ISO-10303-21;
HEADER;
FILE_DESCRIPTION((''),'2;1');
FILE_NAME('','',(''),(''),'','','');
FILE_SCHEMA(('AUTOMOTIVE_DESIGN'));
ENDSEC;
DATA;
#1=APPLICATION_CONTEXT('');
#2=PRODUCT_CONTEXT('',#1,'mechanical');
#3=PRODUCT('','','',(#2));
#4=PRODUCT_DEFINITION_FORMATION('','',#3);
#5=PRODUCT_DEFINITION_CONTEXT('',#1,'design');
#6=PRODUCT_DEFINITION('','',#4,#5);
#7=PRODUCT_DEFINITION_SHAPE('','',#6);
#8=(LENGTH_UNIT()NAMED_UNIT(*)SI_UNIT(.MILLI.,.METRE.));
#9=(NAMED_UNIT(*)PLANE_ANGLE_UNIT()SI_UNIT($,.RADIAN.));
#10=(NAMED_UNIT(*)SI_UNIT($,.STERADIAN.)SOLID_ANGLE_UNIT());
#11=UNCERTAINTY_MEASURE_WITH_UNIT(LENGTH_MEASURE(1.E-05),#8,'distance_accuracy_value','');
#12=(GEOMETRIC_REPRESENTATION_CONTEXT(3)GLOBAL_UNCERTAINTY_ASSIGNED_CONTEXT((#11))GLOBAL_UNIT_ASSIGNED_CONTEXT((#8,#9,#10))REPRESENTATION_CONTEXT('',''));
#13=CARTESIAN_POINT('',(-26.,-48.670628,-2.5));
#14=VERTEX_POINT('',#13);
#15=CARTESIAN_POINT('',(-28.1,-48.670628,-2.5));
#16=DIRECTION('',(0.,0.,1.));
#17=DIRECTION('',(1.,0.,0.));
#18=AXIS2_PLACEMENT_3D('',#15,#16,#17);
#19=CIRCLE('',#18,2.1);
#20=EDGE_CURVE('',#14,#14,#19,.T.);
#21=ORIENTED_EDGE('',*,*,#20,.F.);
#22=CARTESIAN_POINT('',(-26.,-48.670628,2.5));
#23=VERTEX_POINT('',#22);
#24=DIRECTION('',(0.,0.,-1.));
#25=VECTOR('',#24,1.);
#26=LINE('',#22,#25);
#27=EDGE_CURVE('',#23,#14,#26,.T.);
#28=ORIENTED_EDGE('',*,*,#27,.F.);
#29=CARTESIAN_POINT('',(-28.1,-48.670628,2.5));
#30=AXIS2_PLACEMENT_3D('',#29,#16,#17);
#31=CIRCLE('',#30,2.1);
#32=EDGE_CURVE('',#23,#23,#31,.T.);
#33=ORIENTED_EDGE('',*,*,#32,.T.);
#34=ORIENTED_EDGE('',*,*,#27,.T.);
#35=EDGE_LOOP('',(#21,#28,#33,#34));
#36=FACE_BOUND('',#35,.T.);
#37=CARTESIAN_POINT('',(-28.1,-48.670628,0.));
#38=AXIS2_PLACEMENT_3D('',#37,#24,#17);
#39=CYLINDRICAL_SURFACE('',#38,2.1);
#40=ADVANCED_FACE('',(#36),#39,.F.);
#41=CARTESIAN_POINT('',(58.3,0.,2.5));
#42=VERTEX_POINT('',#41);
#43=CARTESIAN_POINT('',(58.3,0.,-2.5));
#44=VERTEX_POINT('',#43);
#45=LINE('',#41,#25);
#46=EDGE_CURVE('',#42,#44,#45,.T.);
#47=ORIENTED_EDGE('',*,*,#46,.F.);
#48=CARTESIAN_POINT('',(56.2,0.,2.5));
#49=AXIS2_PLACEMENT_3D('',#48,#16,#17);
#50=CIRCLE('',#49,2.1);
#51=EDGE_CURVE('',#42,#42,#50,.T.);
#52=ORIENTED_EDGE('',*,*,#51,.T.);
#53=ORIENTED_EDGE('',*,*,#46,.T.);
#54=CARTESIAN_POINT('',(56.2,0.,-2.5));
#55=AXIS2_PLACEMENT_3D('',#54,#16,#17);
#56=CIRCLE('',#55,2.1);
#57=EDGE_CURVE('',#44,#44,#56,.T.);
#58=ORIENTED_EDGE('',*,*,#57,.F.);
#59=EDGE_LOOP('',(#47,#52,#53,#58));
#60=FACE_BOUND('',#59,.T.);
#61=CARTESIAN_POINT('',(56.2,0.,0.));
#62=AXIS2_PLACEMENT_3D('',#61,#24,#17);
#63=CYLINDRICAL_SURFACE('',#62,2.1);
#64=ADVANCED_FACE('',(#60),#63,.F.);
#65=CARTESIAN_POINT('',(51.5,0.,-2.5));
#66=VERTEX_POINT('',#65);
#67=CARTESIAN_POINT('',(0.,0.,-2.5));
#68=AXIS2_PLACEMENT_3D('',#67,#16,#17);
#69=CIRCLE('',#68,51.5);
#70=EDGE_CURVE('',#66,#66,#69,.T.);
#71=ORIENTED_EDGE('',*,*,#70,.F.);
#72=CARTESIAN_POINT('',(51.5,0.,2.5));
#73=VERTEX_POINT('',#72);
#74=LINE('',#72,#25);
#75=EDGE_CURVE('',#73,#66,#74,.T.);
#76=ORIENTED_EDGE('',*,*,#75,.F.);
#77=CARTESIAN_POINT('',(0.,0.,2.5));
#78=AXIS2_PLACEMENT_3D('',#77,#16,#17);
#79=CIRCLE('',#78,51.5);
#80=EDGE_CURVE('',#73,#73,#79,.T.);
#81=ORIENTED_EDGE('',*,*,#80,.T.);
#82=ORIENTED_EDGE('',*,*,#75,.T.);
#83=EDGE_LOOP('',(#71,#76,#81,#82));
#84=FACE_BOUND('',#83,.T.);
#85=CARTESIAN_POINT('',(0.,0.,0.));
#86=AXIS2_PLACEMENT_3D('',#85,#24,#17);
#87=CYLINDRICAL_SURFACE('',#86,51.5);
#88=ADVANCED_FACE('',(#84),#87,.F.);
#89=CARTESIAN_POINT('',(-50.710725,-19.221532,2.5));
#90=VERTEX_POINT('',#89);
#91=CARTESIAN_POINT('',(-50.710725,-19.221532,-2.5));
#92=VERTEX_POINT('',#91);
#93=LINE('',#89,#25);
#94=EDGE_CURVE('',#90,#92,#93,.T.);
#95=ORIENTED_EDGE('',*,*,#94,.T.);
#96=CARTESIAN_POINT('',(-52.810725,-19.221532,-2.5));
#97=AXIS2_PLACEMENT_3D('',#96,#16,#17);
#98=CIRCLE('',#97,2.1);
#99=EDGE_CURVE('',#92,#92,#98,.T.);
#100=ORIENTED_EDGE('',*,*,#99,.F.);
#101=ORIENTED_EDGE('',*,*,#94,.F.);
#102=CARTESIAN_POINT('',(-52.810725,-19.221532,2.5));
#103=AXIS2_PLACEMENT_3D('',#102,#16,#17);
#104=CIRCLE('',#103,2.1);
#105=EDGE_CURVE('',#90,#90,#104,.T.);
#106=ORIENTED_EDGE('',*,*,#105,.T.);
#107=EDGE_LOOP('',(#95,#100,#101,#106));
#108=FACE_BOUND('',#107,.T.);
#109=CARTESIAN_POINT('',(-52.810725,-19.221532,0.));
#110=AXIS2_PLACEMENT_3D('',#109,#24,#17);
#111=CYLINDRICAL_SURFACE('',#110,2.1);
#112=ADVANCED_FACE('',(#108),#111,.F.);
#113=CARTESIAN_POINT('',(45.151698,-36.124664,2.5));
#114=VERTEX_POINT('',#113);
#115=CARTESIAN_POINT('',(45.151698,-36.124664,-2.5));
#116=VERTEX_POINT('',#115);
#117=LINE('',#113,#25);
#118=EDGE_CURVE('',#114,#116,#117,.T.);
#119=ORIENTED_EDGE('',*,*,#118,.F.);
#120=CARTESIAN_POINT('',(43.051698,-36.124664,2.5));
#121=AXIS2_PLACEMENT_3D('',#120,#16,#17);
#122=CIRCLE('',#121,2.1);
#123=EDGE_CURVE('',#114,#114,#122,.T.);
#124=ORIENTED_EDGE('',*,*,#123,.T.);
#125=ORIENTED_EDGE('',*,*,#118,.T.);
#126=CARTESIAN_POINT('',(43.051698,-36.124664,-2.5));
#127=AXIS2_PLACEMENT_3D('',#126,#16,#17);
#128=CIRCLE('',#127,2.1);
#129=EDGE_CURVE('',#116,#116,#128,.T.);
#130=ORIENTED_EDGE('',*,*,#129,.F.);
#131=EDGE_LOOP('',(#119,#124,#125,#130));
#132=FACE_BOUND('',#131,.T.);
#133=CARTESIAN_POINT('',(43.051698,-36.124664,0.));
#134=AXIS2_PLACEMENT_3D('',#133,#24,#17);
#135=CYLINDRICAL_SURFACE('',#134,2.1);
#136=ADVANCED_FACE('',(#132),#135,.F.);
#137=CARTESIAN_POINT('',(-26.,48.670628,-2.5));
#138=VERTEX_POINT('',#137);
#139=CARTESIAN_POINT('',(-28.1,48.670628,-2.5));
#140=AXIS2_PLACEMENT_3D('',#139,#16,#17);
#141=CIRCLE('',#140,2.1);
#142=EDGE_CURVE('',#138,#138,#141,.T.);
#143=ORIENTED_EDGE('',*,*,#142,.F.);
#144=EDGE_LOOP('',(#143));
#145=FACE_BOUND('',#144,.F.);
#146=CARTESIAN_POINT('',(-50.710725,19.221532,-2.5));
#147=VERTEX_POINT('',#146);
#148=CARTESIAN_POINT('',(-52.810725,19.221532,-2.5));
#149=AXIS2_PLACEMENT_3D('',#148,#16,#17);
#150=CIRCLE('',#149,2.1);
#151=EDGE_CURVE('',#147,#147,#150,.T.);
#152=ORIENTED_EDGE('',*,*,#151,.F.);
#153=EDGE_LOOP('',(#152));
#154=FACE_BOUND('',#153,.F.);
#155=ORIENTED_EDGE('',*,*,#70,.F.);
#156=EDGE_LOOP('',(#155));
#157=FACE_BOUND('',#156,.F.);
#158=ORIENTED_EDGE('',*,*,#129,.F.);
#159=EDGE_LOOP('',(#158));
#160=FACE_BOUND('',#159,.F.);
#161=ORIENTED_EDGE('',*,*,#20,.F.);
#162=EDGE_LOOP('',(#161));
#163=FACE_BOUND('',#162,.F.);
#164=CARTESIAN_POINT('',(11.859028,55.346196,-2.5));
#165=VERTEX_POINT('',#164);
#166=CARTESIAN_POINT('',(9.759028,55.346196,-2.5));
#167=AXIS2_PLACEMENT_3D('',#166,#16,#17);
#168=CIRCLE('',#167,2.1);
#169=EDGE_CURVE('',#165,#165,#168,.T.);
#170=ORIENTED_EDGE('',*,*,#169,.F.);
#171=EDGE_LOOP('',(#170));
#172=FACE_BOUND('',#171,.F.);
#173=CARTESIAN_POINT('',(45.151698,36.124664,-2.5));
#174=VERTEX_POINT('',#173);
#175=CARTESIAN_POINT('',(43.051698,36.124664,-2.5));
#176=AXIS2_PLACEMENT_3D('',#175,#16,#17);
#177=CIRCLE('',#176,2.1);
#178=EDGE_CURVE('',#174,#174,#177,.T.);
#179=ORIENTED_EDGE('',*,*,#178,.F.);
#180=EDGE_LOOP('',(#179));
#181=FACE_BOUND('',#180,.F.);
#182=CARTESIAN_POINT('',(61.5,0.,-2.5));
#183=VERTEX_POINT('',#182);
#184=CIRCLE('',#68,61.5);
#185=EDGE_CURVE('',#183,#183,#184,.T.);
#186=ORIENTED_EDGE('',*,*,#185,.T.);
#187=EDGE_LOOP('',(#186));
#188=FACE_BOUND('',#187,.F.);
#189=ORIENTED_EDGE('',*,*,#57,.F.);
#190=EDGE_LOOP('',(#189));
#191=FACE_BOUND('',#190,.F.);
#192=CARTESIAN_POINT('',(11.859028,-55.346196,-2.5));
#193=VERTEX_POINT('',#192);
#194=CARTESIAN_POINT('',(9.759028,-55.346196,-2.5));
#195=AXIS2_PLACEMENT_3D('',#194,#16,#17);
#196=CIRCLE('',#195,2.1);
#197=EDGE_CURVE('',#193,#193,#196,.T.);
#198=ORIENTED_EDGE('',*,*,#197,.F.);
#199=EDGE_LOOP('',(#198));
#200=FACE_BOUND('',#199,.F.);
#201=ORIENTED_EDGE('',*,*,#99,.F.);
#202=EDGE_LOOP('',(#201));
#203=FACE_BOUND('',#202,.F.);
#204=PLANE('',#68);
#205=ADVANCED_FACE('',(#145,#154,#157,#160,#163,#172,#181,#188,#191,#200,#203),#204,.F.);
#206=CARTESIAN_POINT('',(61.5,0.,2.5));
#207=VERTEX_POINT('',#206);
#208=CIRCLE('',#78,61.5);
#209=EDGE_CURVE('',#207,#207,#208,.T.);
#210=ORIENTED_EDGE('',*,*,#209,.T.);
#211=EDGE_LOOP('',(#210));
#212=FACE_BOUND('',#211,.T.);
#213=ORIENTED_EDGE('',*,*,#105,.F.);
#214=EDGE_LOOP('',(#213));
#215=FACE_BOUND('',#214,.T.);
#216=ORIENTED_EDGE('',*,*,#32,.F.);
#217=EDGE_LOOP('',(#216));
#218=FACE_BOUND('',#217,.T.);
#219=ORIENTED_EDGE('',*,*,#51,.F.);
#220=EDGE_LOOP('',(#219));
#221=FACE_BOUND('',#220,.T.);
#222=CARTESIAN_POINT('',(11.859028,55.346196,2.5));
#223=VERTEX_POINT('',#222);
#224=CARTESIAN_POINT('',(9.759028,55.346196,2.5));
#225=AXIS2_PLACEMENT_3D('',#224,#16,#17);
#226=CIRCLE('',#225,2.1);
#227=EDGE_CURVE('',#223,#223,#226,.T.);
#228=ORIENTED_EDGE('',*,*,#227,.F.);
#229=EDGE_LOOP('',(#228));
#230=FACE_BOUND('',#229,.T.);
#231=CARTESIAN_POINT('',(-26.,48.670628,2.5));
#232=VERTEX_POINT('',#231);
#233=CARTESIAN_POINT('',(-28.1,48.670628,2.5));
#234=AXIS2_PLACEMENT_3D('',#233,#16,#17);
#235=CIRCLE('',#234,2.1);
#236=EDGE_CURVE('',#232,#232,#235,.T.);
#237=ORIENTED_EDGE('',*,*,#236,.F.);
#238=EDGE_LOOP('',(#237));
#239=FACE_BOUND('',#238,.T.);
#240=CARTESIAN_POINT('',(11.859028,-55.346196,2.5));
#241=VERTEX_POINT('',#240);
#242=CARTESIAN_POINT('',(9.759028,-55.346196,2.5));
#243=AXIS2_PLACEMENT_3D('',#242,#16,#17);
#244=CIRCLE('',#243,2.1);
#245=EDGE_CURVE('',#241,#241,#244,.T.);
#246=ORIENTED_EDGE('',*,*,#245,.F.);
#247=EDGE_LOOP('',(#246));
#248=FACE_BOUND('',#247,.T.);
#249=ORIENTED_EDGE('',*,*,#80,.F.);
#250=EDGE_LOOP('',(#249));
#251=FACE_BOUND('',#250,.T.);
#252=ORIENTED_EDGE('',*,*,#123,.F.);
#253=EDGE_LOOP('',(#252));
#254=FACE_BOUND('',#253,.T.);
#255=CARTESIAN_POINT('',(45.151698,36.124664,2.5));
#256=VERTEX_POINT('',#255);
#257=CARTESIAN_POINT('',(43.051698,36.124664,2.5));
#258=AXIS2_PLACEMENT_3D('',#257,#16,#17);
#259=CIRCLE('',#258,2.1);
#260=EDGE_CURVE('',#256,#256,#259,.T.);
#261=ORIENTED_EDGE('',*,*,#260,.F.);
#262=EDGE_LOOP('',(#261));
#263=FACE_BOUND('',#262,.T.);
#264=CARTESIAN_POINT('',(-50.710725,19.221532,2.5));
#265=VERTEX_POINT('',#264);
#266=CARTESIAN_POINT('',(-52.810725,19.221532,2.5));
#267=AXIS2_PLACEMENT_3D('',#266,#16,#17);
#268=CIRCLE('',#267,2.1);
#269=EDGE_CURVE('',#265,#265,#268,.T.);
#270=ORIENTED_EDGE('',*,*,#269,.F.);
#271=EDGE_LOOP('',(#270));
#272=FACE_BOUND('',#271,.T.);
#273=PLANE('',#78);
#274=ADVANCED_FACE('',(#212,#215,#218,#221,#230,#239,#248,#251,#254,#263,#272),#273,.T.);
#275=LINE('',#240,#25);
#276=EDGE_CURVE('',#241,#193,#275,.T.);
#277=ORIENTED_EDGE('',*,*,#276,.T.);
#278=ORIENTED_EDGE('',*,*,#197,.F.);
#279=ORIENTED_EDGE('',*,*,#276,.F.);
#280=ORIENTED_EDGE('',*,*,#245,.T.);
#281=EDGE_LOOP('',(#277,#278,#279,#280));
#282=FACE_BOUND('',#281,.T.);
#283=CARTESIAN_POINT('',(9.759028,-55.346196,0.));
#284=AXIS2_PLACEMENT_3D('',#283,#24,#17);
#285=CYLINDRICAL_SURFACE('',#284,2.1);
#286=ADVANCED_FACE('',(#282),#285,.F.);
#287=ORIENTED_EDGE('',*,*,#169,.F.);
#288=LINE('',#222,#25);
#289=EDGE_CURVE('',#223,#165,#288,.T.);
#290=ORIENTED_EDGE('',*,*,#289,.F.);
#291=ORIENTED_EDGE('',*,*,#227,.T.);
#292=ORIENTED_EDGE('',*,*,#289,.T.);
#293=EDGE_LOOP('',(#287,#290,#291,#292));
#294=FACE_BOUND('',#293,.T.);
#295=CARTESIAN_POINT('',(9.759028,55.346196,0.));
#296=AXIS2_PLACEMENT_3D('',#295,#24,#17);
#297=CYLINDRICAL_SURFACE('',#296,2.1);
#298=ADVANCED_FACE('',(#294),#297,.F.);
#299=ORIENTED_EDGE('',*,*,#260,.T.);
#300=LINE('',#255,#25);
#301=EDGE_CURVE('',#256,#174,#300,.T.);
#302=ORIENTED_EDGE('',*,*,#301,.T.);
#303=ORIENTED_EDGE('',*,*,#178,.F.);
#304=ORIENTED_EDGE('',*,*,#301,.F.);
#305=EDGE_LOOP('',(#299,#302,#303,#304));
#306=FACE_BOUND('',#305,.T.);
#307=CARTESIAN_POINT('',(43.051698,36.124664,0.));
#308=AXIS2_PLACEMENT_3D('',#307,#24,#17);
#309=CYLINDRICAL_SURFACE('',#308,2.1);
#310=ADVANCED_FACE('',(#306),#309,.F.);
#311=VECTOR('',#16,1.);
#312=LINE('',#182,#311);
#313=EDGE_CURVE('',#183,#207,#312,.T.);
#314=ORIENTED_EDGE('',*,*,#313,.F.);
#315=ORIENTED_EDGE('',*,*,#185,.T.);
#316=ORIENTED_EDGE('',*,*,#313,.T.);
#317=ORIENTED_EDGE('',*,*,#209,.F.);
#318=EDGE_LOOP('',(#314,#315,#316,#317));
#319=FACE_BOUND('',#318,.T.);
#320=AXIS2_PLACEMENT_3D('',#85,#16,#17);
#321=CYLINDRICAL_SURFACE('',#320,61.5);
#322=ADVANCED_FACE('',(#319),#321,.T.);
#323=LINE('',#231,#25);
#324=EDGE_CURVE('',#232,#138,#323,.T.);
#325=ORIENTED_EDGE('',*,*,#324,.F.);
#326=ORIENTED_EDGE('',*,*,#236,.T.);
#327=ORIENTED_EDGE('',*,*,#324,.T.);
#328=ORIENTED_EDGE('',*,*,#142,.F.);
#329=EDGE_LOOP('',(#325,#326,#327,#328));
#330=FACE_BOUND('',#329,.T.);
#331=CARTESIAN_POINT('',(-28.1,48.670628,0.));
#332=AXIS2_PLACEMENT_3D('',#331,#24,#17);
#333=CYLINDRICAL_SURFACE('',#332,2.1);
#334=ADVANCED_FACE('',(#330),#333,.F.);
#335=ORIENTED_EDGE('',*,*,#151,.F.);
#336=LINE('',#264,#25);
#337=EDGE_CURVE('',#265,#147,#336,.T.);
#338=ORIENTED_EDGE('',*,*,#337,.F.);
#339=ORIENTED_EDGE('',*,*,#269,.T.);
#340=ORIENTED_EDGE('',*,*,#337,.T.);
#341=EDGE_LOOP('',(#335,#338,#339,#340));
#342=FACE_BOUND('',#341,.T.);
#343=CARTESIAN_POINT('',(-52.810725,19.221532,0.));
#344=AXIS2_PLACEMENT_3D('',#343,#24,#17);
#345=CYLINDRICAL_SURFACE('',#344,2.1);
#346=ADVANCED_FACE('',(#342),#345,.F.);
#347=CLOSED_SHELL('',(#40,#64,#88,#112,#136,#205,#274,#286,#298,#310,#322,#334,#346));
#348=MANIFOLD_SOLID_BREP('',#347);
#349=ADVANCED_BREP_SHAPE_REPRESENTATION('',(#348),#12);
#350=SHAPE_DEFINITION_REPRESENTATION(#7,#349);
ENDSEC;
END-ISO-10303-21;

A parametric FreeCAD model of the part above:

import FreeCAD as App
import Part
import Sketcher

V = App.Vector
Q = App.Units.Quantity

doc = App.newDocument("Part")
body = doc.addObject("PartDesign::Body", "Body")

# Sketch on XY plane
sketch1 = body.newObject("Sketcher::SketchObject", "Sketch")
sketch1.AttachmentSupport = (doc.getObject("XY_Plane"), [""])
sketch1.MapMode = "FlatFace"
sketch1.addGeometry([
    Part.Circle(V(0, 0, 0), V(0, 0, 1), 61.5),  # 0
    Part.Circle(V(-28.1, -48.7, 0), V(0, 0, 1), 2.1),  # 1
    Part.Circle(V(-52.8, -19.2, 0), V(0, 0, 1), 2.1),  # 2
    Part.Circle(V(9.8, -55.3, 0), V(0, 0, 1), 2.1),  # 3
    Part.Circle(V(43.1, -36.1, 0), V(0, 0, 1), 2.1),  # 4
    Part.Circle(V(-52.8, 19.2, 0), V(0, 0, 1), 2.1),  # 5
    Part.Circle(V(0, 0, 0), V(0, 0, 1), 51.5),  # 6
    Part.Circle(V(-28.1, 48.7, 0), V(0, 0, 1), 2.1),  # 7
    Part.Circle(V(56.2, 0, 0), V(0, 0, 1), 2.1),  # 8
    Part.Circle(V(9.8, 55.3, 0), V(0, 0, 1), 2.1),  # 9
    Part.Circle(V(43.1, 36.1, 0), V(0, 0, 1), 2.1),  # 10
], False)
sketch1.addConstraint([
    Sketcher.Constraint("Coincident", 0, 3, -1, 1),
    Sketcher.Constraint("Coincident", 6, 3, -1, 1),
    Sketcher.Constraint("Equal", 1, 2),
    Sketcher.Constraint("Equal", 2, 3),
    Sketcher.Constraint("Equal", 3, 4),
    Sketcher.Constraint("Equal", 4, 5),
    Sketcher.Constraint("Equal", 5, 7),
    Sketcher.Constraint("Equal", 7, 8),
    Sketcher.Constraint("Equal", 8, 9),
    Sketcher.Constraint("Equal", 9, 10),
    Sketcher.Constraint("Symmetric", 2, 3, 5, 3, -1),
    Sketcher.Constraint("Symmetric", 1, 3, 7, 3, -1),
    Sketcher.Constraint("Symmetric", 3, 3, 9, 3, -1),
    Sketcher.Constraint("Symmetric", 4, 3, 10, 3, -1),
    Sketcher.Constraint("PointOnObject", 8, 3, -1),
    Sketcher.Constraint("Diameter", 0, Q("123 mm")),
    Sketcher.Constraint("Diameter", 6, Q("103 mm")),
    Sketcher.Constraint("Diameter", 1, Q("4.2 mm")),
    Sketcher.Constraint("DistanceX", 1, 3, -1, 1, Q("28.1 mm")),
    Sketcher.Constraint("DistanceX", -1, 1, 8, 3, Q("56.2 mm")),
    Sketcher.Constraint("DistanceX", -1, 1, 4, 3, Q("43.051698 mm")),
    Sketcher.Constraint("DistanceY", 2, 3, -1, 1, Q("19.221532 mm")),
    Sketcher.Constraint("DistanceX", -1, 1, 3, 3, Q("9.759028 mm")),
    Sketcher.Constraint("DistanceY", 3, 3, 4, 3, Q("19.221532 mm")),
    Sketcher.Constraint("DistanceY", 1, 3, 5, 3, Q("67.89216 mm")),
    Sketcher.Constraint("DistanceY", 3, 3, 5, 3, Q("74.567728 mm")),
    Sketcher.Constraint("DistanceX", 2, 3, -1, 1, Q("52.810725 mm")),
])
pad1 = body.newObject("PartDesign::Pad", "Pad")
pad1.Profile = sketch1
pad1.Length = 5
pad1.Midplane = True

doc.recompute()
